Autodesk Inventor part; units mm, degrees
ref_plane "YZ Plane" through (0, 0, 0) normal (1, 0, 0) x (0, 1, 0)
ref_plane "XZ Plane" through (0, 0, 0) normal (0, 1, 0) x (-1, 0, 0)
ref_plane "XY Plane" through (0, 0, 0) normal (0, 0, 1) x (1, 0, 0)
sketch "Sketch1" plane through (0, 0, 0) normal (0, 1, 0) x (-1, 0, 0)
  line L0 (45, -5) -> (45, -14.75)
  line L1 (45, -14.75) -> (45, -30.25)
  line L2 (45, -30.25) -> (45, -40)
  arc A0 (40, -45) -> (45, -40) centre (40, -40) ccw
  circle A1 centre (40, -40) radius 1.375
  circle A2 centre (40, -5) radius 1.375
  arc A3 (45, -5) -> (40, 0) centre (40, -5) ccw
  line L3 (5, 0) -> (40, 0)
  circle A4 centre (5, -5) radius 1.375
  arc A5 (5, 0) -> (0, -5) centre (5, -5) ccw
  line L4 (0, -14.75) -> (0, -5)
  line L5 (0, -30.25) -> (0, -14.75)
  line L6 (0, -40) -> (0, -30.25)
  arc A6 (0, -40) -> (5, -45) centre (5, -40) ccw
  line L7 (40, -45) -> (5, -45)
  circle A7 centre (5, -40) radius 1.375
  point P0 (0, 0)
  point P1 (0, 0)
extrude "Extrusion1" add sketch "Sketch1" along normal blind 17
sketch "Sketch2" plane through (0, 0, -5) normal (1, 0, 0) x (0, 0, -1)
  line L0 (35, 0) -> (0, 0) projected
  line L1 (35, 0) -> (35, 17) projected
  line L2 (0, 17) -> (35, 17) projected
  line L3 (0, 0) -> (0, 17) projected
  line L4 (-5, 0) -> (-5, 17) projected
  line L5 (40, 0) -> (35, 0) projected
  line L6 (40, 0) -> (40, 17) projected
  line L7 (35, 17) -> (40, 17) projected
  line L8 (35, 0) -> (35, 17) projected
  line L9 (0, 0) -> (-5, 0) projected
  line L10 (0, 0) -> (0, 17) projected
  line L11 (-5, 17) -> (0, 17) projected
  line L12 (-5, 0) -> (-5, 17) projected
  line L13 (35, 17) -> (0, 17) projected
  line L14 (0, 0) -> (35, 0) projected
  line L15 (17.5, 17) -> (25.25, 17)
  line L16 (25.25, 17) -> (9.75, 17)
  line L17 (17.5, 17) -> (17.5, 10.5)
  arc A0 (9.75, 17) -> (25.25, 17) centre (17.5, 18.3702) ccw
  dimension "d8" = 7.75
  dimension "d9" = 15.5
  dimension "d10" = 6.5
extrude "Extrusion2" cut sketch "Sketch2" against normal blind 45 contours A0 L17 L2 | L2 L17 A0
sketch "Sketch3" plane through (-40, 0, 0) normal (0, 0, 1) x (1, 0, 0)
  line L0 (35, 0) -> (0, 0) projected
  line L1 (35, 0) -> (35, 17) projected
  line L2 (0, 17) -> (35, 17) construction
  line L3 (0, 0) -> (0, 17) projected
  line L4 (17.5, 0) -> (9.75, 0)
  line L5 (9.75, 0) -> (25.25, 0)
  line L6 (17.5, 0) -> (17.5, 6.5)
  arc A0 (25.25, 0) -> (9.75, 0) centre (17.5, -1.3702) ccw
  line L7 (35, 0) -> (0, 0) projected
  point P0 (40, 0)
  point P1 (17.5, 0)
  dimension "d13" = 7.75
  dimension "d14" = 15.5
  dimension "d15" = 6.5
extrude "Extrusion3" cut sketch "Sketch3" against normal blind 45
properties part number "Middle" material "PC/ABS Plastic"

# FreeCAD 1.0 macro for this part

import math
import FreeCAD as App
import Part
import Sketcher
from FreeCAD import Vector

doc = App.newDocument("Part")
body = doc.addObject("PartDesign::Body", "Body")

# Sketch on XZ plane
sketch1 = body.newObject("Sketcher::SketchObject", "Sketch")
sketch1.AttachmentSupport = (doc.getObject("XZ_Plane"), [""])
sketch1.MapMode = "FlatFace"
sketch1.addGeometry(Part.LineSegment(Vector(-45, -40, 0), Vector(-45, -5, 0)), False)
sketch1.addGeometry(Part.ArcOfCircle(Part.Circle(Vector(-40, -5, 0), Vector(0, 0, 1), 5), math.radians(90), math.radians(180)), False)
sketch1.addGeometry(Part.LineSegment(Vector(-40, 0, 0), Vector(-5, 0, 0)), False)
sketch1.addGeometry(Part.ArcOfCircle(Part.Circle(Vector(-5, -5, 0), Vector(0, 0, 1), 5), math.radians(0), math.radians(90)), False)
sketch1.addGeometry(Part.LineSegment(Vector(0, -5, 0), Vector(0, -40, 0)), False)
sketch1.addGeometry(Part.ArcOfCircle(Part.Circle(Vector(-5, -40, 0), Vector(0, 0, 1), 5), math.radians(-90), math.radians(0)), False)
sketch1.addGeometry(Part.LineSegment(Vector(-5, -45, 0), Vector(-40, -45, 0)), False)
sketch1.addGeometry(Part.ArcOfCircle(Part.Circle(Vector(-40, -40, 0), Vector(0, 0, 1), 5), math.radians(180), math.radians(270)), False)
sketch1.addGeometry(Part.Circle(Vector(-5, -40, 0), Vector(0, 0, 1), 1.375), False)
sketch1.addGeometry(Part.Circle(Vector(-40, -40, 0), Vector(0, 0, 1), 1.375), False)
sketch1.addGeometry(Part.Circle(Vector(-5, -5, 0), Vector(0, 0, 1), 1.375), False)
sketch1.addGeometry(Part.Circle(Vector(-40, -5, 0), Vector(0, 0, 1), 1.375), False)
sketch1.addConstraint(Sketcher.Constraint("Tangent", 0, 2, 1, 2))
sketch1.addConstraint(Sketcher.Constraint("Tangent", 1, 1, 2, 1))
sketch1.addConstraint(Sketcher.Constraint("Tangent", 2, 2, 3, 2))
sketch1.addConstraint(Sketcher.Constraint("Tangent", 3, 1, 4, 1))
sketch1.addConstraint(Sketcher.Constraint("Tangent", 4, 2, 5, 2))
sketch1.addConstraint(Sketcher.Constraint("Tangent", 5, 1, 6, 1))
sketch1.addConstraint(Sketcher.Constraint("Tangent", 6, 2, 7, 2))
sketch1.addConstraint(Sketcher.Constraint("Tangent", 7, 1, 0, 1))
sketch1.addConstraint(Sketcher.Constraint("Vertical", 0))
sketch1.addConstraint(Sketcher.Constraint("Horizontal", 2))
sketch1.addConstraint(Sketcher.Constraint("Vertical", 4))
sketch1.addConstraint(Sketcher.Constraint("Horizontal", 6))
sketch1.addConstraint(Sketcher.Constraint("Coincident", 8, 3, 5, 3))
sketch1.addConstraint(Sketcher.Constraint("Coincident", 9, 3, 7, 3))
sketch1.addConstraint(Sketcher.Constraint("Coincident", 10, 3, 3, 3))
sketch1.addConstraint(Sketcher.Constraint("Coincident", 11, 3, 1, 3))
sketch1.addConstraint(Sketcher.Constraint("Equal", 1, 3))
sketch1.addConstraint(Sketcher.Constraint("Equal", 3, 5))
sketch1.addConstraint(Sketcher.Constraint("Equal", 5, 7))
sketch1.addConstraint(Sketcher.Constraint("Equal", 8, 9))
sketch1.addConstraint(Sketcher.Constraint("Equal", 9, 10))
sketch1.addConstraint(Sketcher.Constraint("Equal", 10, 11))
sketch1.addConstraint(Sketcher.Constraint("PointOnObject", 1, 1, -1))
sketch1.addConstraint(Sketcher.Constraint("PointOnObject", 3, 1, -2))
sketch1.addConstraint(Sketcher.Constraint("Equal", 6, 0))
sketch1.addConstraint(Sketcher.Constraint("Radius", 1, 5.0))
sketch1.addConstraint(Sketcher.Constraint("Diameter", 8, 2.75))
sketch1.addConstraint(Sketcher.Constraint("DistanceX", 2, 1, 2, 2, 35.0))
pad1 = body.newObject("PartDesign::Pad", "Pad")
pad1.Profile = sketch1
pad1.Length = 17
pad1.Reversed = True

# Sketch on YZ plane
sketch2 = body.newObject("Sketcher::SketchObject", "Sketch001")
sketch2.AttachmentSupport = (doc.getObject("YZ_Plane"), [""])
sketch2.MapMode = "FlatFace"
sketch2.addGeometry(Part.LineSegment(Vector(17, -30.25, 0), Vector(17, -14.75, 0)), False)
sketch2.addGeometry(Part.ArcOfCircle(Part.Circle(Vector(18.3702, -22.5, 0), Vector(0, 0, 1), 7.870194), math.radians(100.026283), math.radians(259.973717)), False)
sketch2.addConstraint(Sketcher.Constraint("Coincident", 0, 1, 1, 2))
sketch2.addConstraint(Sketcher.Constraint("Coincident", 1, 1, 0, 2))
sketch2.addConstraint(Sketcher.Constraint("Vertical", 0))
sketch2.addConstraint(Sketcher.Constraint("DistanceY", 0, 1, 0, 2, 15.5))
sketch2.addConstraint(Sketcher.Constraint("DistanceX", -1, 1, 0, 1, 17.0))
sketch2.addConstraint(Sketcher.Constraint("DistanceY", 1, 3, -1, 1, 22.5))
sketch2.addConstraint(Sketcher.Constraint("Radius", 1, 7.8702))
pocket1 = body.newObject("PartDesign::Pocket", "Pocket")
pocket1.Profile = sketch2
pocket1.Length = 45

# Sketch on XY plane
sketch3 = body.newObject("Sketcher::SketchObject", "Sketch002")
sketch3.AttachmentSupport = (doc.getObject("XY_Plane"), [""])
sketch3.MapMode = "FlatFace"
sketch3.addGeometry(Part.ArcOfCircle(Part.Circle(Vector(-22.5, -1.3702, 0), Vector(0, 0, 1), 7.870194), math.radians(10.026283), math.radians(169.973717)), False)
sketch3.addGeometry(Part.LineSegment(Vector(-30.25, 0, 0), Vector(-14.75, 0, 0)), False)
sketch3.addConstraint(Sketcher.Constraint("Coincident", 0, 1, 1, 2))
sketch3.addConstraint(Sketcher.Constraint("Coincident", 1, 1, 0, 2))
sketch3.addConstraint(Sketcher.Constraint("Horizontal", 1))
sketch3.addConstraint(Sketcher.Constraint("PointOnObject", 0, 1, -1))
sketch3.addConstraint(Sketcher.Constraint("DistanceX", 1, 1, 1, 2, 15.5))
sketch3.addConstraint(Sketcher.Constraint("DistanceX", 0, 3, -1, 1, 22.5))
sketch3.addConstraint(Sketcher.Constraint("Radius", 0, 7.8702))
pocket2 = body.newObject("PartDesign::Pocket", "Pocket001")
pocket2.Profile = sketch3
pocket2.Length = 45

doc.recompute()
